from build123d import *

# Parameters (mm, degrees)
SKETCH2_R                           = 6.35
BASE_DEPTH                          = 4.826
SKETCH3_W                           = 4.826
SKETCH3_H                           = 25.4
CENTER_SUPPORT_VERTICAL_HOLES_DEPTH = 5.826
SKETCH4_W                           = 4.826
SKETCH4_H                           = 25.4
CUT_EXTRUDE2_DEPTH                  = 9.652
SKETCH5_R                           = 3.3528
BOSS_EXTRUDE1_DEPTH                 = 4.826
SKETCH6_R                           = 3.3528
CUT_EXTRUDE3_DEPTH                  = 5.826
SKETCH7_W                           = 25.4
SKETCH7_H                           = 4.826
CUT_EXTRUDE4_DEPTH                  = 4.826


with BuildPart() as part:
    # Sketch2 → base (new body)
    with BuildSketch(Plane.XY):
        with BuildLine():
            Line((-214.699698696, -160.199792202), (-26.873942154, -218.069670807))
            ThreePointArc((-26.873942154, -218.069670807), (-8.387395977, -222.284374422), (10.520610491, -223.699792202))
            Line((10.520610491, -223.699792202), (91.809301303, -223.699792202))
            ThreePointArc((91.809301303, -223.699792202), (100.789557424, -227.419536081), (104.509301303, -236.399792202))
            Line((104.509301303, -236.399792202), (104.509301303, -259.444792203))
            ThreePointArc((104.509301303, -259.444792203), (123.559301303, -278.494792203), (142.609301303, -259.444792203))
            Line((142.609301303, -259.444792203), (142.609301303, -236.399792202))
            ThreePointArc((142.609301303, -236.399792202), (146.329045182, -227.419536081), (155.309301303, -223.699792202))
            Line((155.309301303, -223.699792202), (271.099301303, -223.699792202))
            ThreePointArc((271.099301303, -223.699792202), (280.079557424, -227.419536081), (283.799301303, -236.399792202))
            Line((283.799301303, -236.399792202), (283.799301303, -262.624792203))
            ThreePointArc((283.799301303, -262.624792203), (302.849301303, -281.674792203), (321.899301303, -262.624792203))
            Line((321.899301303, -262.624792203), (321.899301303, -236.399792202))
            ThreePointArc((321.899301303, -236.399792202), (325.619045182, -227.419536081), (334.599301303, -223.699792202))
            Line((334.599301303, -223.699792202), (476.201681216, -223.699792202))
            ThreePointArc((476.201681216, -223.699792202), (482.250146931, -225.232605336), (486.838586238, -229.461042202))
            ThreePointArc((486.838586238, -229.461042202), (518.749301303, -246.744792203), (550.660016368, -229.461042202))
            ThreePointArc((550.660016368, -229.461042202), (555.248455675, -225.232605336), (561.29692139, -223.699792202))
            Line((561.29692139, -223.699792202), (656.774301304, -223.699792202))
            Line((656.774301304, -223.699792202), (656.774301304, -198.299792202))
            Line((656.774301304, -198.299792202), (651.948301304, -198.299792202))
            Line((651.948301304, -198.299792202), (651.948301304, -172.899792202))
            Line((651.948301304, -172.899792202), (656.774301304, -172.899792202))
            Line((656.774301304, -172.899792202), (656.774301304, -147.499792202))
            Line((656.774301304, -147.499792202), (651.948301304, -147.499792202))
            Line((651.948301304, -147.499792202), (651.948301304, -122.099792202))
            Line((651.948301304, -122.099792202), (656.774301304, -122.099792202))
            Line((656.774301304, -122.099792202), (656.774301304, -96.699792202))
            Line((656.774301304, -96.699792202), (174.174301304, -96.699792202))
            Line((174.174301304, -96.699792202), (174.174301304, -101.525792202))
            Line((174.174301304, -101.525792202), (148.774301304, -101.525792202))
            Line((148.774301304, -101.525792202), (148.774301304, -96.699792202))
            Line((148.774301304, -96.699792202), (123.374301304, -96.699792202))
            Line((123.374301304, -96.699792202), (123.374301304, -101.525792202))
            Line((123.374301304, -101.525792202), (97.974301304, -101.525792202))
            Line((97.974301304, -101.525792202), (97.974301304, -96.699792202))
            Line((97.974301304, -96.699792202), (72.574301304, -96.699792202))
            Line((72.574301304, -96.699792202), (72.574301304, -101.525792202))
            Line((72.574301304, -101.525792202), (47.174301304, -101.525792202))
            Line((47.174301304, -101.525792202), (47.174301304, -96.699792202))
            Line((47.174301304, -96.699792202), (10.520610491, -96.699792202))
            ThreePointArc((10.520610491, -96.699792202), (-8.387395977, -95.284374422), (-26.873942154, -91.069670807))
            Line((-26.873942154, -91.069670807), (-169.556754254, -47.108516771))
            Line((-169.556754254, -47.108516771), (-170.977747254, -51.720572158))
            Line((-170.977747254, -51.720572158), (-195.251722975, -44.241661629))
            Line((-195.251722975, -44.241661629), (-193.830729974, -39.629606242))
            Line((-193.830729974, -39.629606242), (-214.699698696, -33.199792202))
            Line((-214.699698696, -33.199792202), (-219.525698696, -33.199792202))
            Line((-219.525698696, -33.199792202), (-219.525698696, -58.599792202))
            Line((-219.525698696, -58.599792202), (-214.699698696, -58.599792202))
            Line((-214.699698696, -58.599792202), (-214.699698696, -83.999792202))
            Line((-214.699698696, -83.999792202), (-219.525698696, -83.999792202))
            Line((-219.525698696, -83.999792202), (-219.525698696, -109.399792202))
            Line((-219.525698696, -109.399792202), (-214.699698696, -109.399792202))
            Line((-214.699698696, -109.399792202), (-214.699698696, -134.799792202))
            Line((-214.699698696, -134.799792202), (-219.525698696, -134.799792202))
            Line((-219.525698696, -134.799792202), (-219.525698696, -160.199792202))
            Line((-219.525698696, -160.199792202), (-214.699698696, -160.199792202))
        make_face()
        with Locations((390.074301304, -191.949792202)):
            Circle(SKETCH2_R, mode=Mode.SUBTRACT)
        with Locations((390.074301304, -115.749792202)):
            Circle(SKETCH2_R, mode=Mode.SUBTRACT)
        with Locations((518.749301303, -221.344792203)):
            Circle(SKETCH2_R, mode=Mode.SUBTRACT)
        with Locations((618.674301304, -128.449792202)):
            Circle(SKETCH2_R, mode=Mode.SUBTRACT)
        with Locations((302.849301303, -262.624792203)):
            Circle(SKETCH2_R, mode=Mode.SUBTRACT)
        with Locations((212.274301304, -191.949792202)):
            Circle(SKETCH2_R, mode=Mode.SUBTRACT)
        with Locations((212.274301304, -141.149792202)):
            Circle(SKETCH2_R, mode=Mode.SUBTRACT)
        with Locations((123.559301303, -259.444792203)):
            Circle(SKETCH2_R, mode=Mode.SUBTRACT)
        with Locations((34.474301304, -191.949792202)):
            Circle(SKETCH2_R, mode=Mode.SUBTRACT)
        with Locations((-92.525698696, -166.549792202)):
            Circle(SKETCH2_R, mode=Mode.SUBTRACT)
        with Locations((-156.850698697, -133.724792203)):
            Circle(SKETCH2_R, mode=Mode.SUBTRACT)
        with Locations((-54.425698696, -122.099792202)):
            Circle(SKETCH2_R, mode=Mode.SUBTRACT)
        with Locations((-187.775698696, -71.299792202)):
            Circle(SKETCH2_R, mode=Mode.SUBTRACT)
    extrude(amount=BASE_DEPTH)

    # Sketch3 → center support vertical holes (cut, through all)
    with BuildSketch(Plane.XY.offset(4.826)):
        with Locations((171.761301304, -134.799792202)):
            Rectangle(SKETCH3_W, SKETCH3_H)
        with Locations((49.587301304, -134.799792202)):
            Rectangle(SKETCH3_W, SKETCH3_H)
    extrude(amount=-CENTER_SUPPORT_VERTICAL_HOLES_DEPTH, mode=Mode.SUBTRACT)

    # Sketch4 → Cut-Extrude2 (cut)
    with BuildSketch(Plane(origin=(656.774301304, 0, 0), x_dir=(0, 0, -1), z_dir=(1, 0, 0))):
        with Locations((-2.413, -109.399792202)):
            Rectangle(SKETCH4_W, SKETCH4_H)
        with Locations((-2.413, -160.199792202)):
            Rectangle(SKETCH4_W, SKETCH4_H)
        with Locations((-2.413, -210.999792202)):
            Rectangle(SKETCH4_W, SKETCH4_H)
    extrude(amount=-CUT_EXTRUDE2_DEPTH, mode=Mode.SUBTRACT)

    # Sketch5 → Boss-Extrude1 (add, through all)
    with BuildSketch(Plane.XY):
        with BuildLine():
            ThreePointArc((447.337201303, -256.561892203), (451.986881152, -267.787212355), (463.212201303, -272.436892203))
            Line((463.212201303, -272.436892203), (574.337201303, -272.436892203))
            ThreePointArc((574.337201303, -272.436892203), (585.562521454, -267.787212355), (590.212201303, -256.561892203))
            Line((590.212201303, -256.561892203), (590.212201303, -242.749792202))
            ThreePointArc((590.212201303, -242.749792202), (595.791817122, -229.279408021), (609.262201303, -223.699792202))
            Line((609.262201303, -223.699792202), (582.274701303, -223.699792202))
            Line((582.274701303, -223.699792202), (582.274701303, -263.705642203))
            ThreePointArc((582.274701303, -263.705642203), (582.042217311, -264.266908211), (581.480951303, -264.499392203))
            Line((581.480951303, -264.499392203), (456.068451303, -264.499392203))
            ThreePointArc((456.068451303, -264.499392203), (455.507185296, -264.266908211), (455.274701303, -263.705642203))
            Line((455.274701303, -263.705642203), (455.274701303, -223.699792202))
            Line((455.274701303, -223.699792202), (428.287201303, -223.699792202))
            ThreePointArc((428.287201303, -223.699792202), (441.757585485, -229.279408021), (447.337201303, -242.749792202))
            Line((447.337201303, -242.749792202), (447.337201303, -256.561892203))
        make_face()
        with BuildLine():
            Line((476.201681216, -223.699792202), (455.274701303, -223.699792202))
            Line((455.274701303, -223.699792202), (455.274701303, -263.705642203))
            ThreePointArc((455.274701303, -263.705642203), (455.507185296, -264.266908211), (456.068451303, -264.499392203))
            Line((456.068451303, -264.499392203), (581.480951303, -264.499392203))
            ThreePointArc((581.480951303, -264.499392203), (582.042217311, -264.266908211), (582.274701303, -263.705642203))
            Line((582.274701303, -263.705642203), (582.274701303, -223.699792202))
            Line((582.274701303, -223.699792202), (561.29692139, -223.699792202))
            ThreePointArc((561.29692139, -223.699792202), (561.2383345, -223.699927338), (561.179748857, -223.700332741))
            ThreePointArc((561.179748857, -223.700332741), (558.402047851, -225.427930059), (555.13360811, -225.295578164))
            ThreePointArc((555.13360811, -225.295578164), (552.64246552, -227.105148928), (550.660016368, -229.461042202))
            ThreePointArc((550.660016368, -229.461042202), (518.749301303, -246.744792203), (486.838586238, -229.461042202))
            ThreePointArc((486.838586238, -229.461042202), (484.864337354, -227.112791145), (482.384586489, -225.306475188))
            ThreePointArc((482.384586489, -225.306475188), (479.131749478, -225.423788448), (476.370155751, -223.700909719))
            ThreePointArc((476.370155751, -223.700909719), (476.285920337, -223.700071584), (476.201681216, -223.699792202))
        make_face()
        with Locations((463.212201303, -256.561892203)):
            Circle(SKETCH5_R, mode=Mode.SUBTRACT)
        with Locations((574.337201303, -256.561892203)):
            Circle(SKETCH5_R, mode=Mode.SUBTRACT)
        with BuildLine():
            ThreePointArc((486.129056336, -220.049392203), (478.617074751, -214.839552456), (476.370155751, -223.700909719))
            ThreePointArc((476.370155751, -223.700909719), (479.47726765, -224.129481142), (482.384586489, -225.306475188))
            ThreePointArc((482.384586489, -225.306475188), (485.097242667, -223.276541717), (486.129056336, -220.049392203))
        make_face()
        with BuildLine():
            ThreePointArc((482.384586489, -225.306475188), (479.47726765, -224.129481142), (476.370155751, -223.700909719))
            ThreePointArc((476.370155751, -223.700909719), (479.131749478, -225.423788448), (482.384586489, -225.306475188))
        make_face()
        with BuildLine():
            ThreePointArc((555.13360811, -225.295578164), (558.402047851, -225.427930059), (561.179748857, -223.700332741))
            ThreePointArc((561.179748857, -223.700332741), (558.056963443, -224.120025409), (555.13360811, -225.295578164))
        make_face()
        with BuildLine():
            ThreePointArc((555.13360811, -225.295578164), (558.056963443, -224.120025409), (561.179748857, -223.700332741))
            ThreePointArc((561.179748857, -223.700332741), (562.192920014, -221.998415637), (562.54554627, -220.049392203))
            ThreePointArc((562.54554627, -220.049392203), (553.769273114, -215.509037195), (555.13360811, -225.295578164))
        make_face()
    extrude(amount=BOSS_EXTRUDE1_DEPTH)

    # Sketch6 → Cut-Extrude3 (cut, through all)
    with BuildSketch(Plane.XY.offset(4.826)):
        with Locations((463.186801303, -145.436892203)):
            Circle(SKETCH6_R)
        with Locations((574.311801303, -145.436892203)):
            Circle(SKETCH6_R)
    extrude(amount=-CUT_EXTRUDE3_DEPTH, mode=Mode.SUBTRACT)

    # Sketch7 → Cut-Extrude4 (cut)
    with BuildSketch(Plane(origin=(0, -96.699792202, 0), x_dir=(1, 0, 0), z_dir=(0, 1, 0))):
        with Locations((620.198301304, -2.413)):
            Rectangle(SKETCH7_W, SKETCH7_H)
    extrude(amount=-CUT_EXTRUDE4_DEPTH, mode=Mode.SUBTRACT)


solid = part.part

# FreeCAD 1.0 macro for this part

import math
import FreeCAD as App
import Part
import Sketcher
from FreeCAD import Vector
Q = App.Units.Quantity


def add_polygon(sketch, points):
    """Adds a closed chain of lines whose ends are joined by coincident constraints."""
    first, n = sketch.GeometryCount, len(points)
    for a, b in zip(points, points[1:] + points[:1]):
        sketch.addGeometry(Part.LineSegment(App.Vector(*a, 0), App.Vector(*b, 0)), False)
    for i in range(n):
        sketch.addConstraint(Sketcher.Constraint("Coincident", first + i, 2, first + (i + 1) % n, 1))

doc = App.newDocument("Part")
body = doc.addObject("PartDesign::Body", "Body")

# Sketch on XY plane
sketch1 = body.newObject("Sketcher::SketchObject", "Sketch")
sketch1.AttachmentSupport = (doc.getObject("XY_Plane"), [""])
sketch1.MapMode = "FlatFace"
sketch1.addGeometry(Part.LineSegment(Vector(-214.7, -160.2, 0), Vector(-26.9, -218.1, 0)), False)
sketch1.addGeometry(Part.ArcOfCircle(Part.Circle(Vector(10.5, -96.7, 0), Vector(0, 0, 1), 127), math.radians(-107.12), math.radians(-90)), False)
sketch1.addGeometry(Part.LineSegment(Vector(10.5, -223.7, 0), Vector(91.8, -223.7, 0)), False)
sketch1.addGeometry(Part.ArcOfCircle(Part.Circle(Vector(91.8, -236.4, 0), Vector(0, 0, 1), 12.7), math.radians(0), math.radians(90)), False)
sketch1.addGeometry(Part.LineSegment(Vector(104.5, -236.4, 0), Vector(104.5, -259.4, 0)), False)
sketch1.addGeometry(Part.ArcOfCircle(Part.Circle(Vector(123.6, -259.4, 0), Vector(0, 0, 1), 19.1), math.radians(180), math.radians(360)), False)
sketch1.addGeometry(Part.LineSegment(Vector(142.6, -259.4, 0), Vector(142.6, -236.4, 0)), False)
sketch1.addGeometry(Part.ArcOfCircle(Part.Circle(Vector(155.3, -236.4, 0), Vector(0, 0, 1), 12.7), math.radians(90), math.radians(180)), False)
sketch1.addGeometry(Part.LineSegment(Vector(155.3, -223.7, 0), Vector(271.1, -223.7, 0)), False)
sketch1.addGeometry(Part.ArcOfCircle(Part.Circle(Vector(271.1, -236.4, 0), Vector(0, 0, 1), 12.7), math.radians(0), math.radians(90)), False)
sketch1.addGeometry(Part.LineSegment(Vector(283.8, -236.4, 0), Vector(283.8, -262.6, 0)), False)
sketch1.addGeometry(Part.ArcOfCircle(Part.Circle(Vector(302.8, -262.6, 0), Vector(0, 0, 1), 19.1), math.radians(180), math.radians(360)), False)
sketch1.addGeometry(Part.LineSegment(Vector(321.9, -262.6, 0), Vector(321.9, -236.4, 0)), False)
sketch1.addGeometry(Part.ArcOfCircle(Part.Circle(Vector(334.6, -236.4, 0), Vector(0, 0, 1), 12.7), math.radians(90), math.radians(180)), False)
sketch1.addGeometry(Part.LineSegment(Vector(334.6, -223.7, 0), Vector(476.2, -223.7, 0)), False)
sketch1.addGeometry(Part.ArcOfCircle(Part.Circle(Vector(476.2, -236.4, 0), Vector(0, 0, 1), 12.7), math.radians(33), math.radians(90)), False)
sketch1.addGeometry(Part.ArcOfCircle(Part.Circle(Vector(518.7, -208.6, 0), Vector(0, 0, 1), 38.1), math.radians(-147), math.radians(-33)), False)
sketch1.addGeometry(Part.ArcOfCircle(Part.Circle(Vector(561.3, -236.4, 0), Vector(0, 0, 1), 12.7), math.radians(90), math.radians(147)), False)
sketch1.addGeometry(Part.LineSegment(Vector(561.3, -223.7, 0), Vector(656.8, -223.7, 0)), False)
sketch1.addGeometry(Part.LineSegment(Vector(656.8, -223.7, 0), Vector(656.8, -198.3, 0)), False)
sketch1.addGeometry(Part.LineSegment(Vector(656.8, -198.3, 0), Vector(651.9, -198.3, 0)), False)
sketch1.addGeometry(Part.LineSegment(Vector(651.9, -198.3, 0), Vector(651.9, -172.9, 0)), False)
sketch1.addGeometry(Part.LineSegment(Vector(651.9, -172.9, 0), Vector(656.8, -172.9, 0)), False)
sketch1.addGeometry(Part.LineSegment(Vector(656.8, -172.9, 0), Vector(656.8, -147.5, 0)), False)
sketch1.addGeometry(Part.LineSegment(Vector(656.8, -147.5, 0), Vector(651.9, -147.5, 0)), False)
sketch1.addGeometry(Part.LineSegment(Vector(651.9, -147.5, 0), Vector(651.9, -122.1, 0)), False)
sketch1.addGeometry(Part.LineSegment(Vector(651.9, -122.1, 0), Vector(656.8, -122.1, 0)), False)
sketch1.addGeometry(Part.LineSegment(Vector(656.8, -122.1, 0), Vector(656.8, -96.7, 0)), False)
sketch1.addGeometry(Part.LineSegment(Vector(656.8, -96.7, 0), Vector(174.2, -96.7, 0)), False)
sketch1.addGeometry(Part.LineSegment(Vector(174.2, -96.7, 0), Vector(174.2, -101.5, 0)), False)
sketch1.addGeometry(Part.LineSegment(Vector(174.2, -101.5, 0), Vector(148.8, -101.5, 0)), False)
sketch1.addGeometry(Part.LineSegment(Vector(148.8, -101.5, 0), Vector(148.8, -96.7, 0)), False)
sketch1.addGeometry(Part.LineSegment(Vector(148.8, -96.7, 0), Vector(123.4, -96.7, 0)), False)
sketch1.addGeometry(Part.LineSegment(Vector(123.4, -96.7, 0), Vector(123.4, -101.5, 0)), False)
sketch1.addGeometry(Part.LineSegment(Vector(123.4, -101.5, 0), Vector(98, -101.5, 0)), False)
sketch1.addGeometry(Part.LineSegment(Vector(98, -101.5, 0), Vector(98, -96.7, 0)), False)
sketch1.addGeometry(Part.LineSegment(Vector(98, -96.7, 0), Vector(72.6, -96.7, 0)), False)
sketch1.addGeometry(Part.LineSegment(Vector(72.6, -96.7, 0), Vector(72.6, -101.5, 0)), False)
sketch1.addGeometry(Part.LineSegment(Vector(72.6, -101.5, 0), Vector(47.2, -101.5, 0)), False)
sketch1.addGeometry(Part.LineSegment(Vector(47.2, -101.5, 0), Vector(47.2, -96.7, 0)), False)
sketch1.addGeometry(Part.LineSegment(Vector(47.2, -96.7, 0), Vector(10.5, -96.7, 0)), False)
sketch1.addGeometry(Part.ArcOfCircle(Part.Circle(Vector(10.5, 30.3, 0), Vector(0, 0, 1), 127), math.radians(-107.12), math.radians(-90)), False)
sketch1.addGeometry(Part.LineSegment(Vector(-26.9, -91.1, 0), Vector(-169.6, -47.1, 0)), False)
sketch1.addGeometry(Part.LineSegment(Vector(-169.6, -47.1, 0), Vector(-171, -51.7, 0)), False)
sketch1.addGeometry(Part.LineSegment(Vector(-171, -51.7, 0), Vector(-195.3, -44.2, 0)), False)
sketch1.addGeometry(Part.LineSegment(Vector(-195.3, -44.2, 0), Vector(-193.8, -39.6, 0)), False)
sketch1.addGeometry(Part.LineSegment(Vector(-193.8, -39.6, 0), Vector(-214.7, -33.2, 0)), False)
sketch1.addGeometry(Part.LineSegment(Vector(-214.7, -33.2, 0), Vector(-219.5, -33.2, 0)), False)
sketch1.addGeometry(Part.LineSegment(Vector(-219.5, -33.2, 0), Vector(-219.5, -58.6, 0)), False)
sketch1.addGeometry(Part.LineSegment(Vector(-219.5, -58.6, 0), Vector(-214.7, -58.6, 0)), False)
sketch1.addGeometry(Part.LineSegment(Vector(-214.7, -58.6, 0), Vector(-214.7, -84, 0)), False)
sketch1.addGeometry(Part.LineSegment(Vector(-214.7, -84, 0), Vector(-219.5, -84, 0)), False)
sketch1.addGeometry(Part.LineSegment(Vector(-219.5, -84, 0), Vector(-219.5, -109.4, 0)), False)
sketch1.addGeometry(Part.LineSegment(Vector(-219.5, -109.4, 0), Vector(-214.7, -109.4, 0)), False)
sketch1.addGeometry(Part.LineSegment(Vector(-214.7, -109.4, 0), Vector(-214.7, -134.8, 0)), False)
sketch1.addGeometry(Part.LineSegment(Vector(-214.7, -134.8, 0), Vector(-219.5, -134.8, 0)), False)
sketch1.addGeometry(Part.LineSegment(Vector(-219.5, -134.8, 0), Vector(-219.5, -160.2, 0)), False)
sketch1.addGeometry(Part.LineSegment(Vector(-219.5, -160.2, 0), Vector(-214.7, -160.2, 0)), False)
sketch1.addGeometry(Part.Circle(Vector(123.6, -259.4, 0), Vector(0, 0, 1), 6.3), False)
sketch1.addGeometry(Part.Circle(Vector(34.5, -191.9, 0), Vector(0, 0, 1), 6.3), False)
sketch1.addGeometry(Part.Circle(Vector(212.3, -191.9, 0), Vector(0, 0, 1), 6.3), False)
sketch1.addGeometry(Part.Circle(Vector(302.8, -262.6, 0), Vector(0, 0, 1), 6.3), False)
sketch1.addGeometry(Part.Circle(Vector(518.7, -221.3, 0), Vector(0, 0, 1), 6.3), False)
sketch1.addGeometry(Part.Circle(Vector(390.1, -191.9, 0), Vector(0, 0, 1), 6.3), False)
sketch1.addGeometry(Part.Circle(Vector(-92.5, -166.5, 0), Vector(0, 0, 1), 6.3), False)
sketch1.addGeometry(Part.Circle(Vector(-156.9, -133.7, 0), Vector(0, 0, 1), 6.3), False)
sketch1.addGeometry(Part.Circle(Vector(-54.4, -122.1, 0), Vector(0, 0, 1), 6.3), False)
sketch1.addGeometry(Part.Circle(Vector(212.3, -141.1, 0), Vector(0, 0, 1), 6.3), False)
sketch1.addGeometry(Part.Circle(Vector(-187.8, -71.3, 0), Vector(0, 0, 1), 6.3), False)
sketch1.addGeometry(Part.Circle(Vector(618.7, -128.4, 0), Vector(0, 0, 1), 6.3), False)
sketch1.addGeometry(Part.Circle(Vector(390.1, -115.7, 0), Vector(0, 0, 1), 6.3), False)
sketch1.addConstraint(Sketcher.Constraint("Tangent", 0, 2, 1, 1))
sketch1.addConstraint(Sketcher.Constraint("Tangent", 1, 2, 2, 1))
sketch1.addConstraint(Sketcher.Constraint("Tangent", 2, 2, 3, 2))
sketch1.addConstraint(Sketcher.Constraint("Tangent", 3, 1, 4, 1))
sketch1.addConstraint(Sketcher.Constraint("Tangent", 4, 2, 5, 1))
sketch1.addConstraint(Sketcher.Constraint("Tangent", 5, 2, 6, 1))
sketch1.addConstraint(Sketcher.Constraint("Tangent", 6, 2, 7, 2))
sketch1.addConstraint(Sketcher.Constraint("Tangent", 7, 1, 8, 1))
sketch1.addConstraint(Sketcher.Constraint("Tangent", 8, 2, 9, 2))
sketch1.addConstraint(Sketcher.Constraint("Tangent", 9, 1, 10, 1))
sketch1.addConstraint(Sketcher.Constraint("Tangent", 10, 2, 11, 1))
sketch1.addConstraint(Sketcher.Constraint("Tangent", 11, 2, 12, 1))
sketch1.addConstraint(Sketcher.Constraint("Tangent", 12, 2, 13, 2))
sketch1.addConstraint(Sketcher.Constraint("Tangent", 13, 1, 14, 1))
sketch1.addConstraint(Sketcher.Constraint("Tangent", 14, 2, 15, 2))
sketch1.addConstraint(Sketcher.Constraint("Tangent", 15, 1, 16, 1))
sketch1.addConstraint(Sketcher.Constraint("Tangent", 16, 2, 17, 2))
sketch1.addConstraint(Sketcher.Constraint("Tangent", 17, 1, 18, 1))
sketch1.addConstraint(Sketcher.Constraint("Coincident", 18, 2, 19, 1))
sketch1.addConstraint(Sketcher.Constraint("Coincident", 19, 2, 20, 1))
sketch1.addConstraint(Sketcher.Constraint("Coincident", 20, 2, 21, 1))
sketch1.addConstraint(Sketcher.Constraint("Coincident", 21, 2, 22, 1))
sketch1.addConstraint(Sketcher.Constraint("Coincident", 22, 2, 23, 1))
sketch1.addConstraint(Sketcher.Constraint("Coincident", 23, 2, 24, 1))
sketch1.addConstraint(Sketcher.Constraint("Coincident", 24, 2, 25, 1))
sketch1.addConstraint(Sketcher.Constraint("Coincident", 25, 2, 26, 1))
sketch1.addConstraint(Sketcher.Constraint("Coincident", 26, 2, 27, 1))
sketch1.addConstraint(Sketcher.Constraint("Coincident", 27, 2, 28, 1))
sketch1.addConstraint(Sketcher.Constraint("Coincident", 28, 2, 29, 1))
sketch1.addConstraint(Sketcher.Constraint("Coincident", 29, 2, 30, 1))
sketch1.addConstraint(Sketcher.Constraint("Coincident", 30, 2, 31, 1))
sketch1.addConstraint(Sketcher.Constraint("Coincident", 31, 2, 32, 1))
sketch1.addConstraint(Sketcher.Constraint("Coincident", 32, 2, 33, 1))
sketch1.addConstraint(Sketcher.Constraint("Coincident", 33, 2, 34, 1))
sketch1.addConstraint(Sketcher.Constraint("Coincident", 34, 2, 35, 1))
sketch1.addConstraint(Sketcher.Constraint("Coincident", 35, 2, 36, 1))
sketch1.addConstraint(Sketcher.Constraint("Coincident", 36, 2, 37, 1))
sketch1.addConstraint(Sketcher.Constraint("Coincident", 37, 2, 38, 1))
sketch1.addConstraint(Sketcher.Constraint("Coincident", 38, 2, 39, 1))
sketch1.addConstraint(Sketcher.Constraint("Coincident", 39, 2, 40, 1))
sketch1.addConstraint(Sketcher.Constraint("Tangent", 40, 2, 41, 2))
sketch1.addConstraint(Sketcher.Constraint("Tangent", 41, 1, 42, 1))
sketch1.addConstraint(Sketcher.Constraint("Coincident", 42, 2, 43, 1))
sketch1.addConstraint(Sketcher.Constraint("Coincident", 43, 2, 44, 1))
sketch1.addConstraint(Sketcher.Constraint("Coincident", 44, 2, 45, 1))
sketch1.addConstraint(Sketcher.Constraint("Coincident", 45, 2, 46, 1))
sketch1.addConstraint(Sketcher.Constraint("Coincident", 46, 2, 47, 1))
sketch1.addConstraint(Sketcher.Constraint("Coincident", 47, 2, 48, 1))
sketch1.addConstraint(Sketcher.Constraint("Coincident", 48, 2, 49, 1))
sketch1.addConstraint(Sketcher.Constraint("Coincident", 49, 2, 50, 1))
sketch1.addConstraint(Sketcher.Constraint("Coincident", 50, 2, 51, 1))
sketch1.addConstraint(Sketcher.Constraint("Coincident", 51, 2, 52, 1))
sketch1.addConstraint(Sketcher.Constraint("Coincident", 52, 2, 53, 1))
sketch1.addConstraint(Sketcher.Constraint("Coincident", 53, 2, 54, 1))
sketch1.addConstraint(Sketcher.Constraint("Coincident", 54, 2, 55, 1))
sketch1.addConstraint(Sketcher.Constraint("Coincident", 55, 2, 56, 1))
sketch1.addConstraint(Sketcher.Constraint("Coincident", 56, 2, 57, 1))
sketch1.addConstraint(Sketcher.Constraint("Coincident", 57, 2, 0, 1))
sketch1.addConstraint(Sketcher.Constraint("Horizontal", 2))
sketch1.addConstraint(Sketcher.Constraint("Vertical", 4))
sketch1.addConstraint(Sketcher.Constraint("Vertical", 6))
sketch1.addConstraint(Sketcher.Constraint("Horizontal", 8))
sketch1.addConstraint(Sketcher.Constraint("Vertical", 10))
sketch1.addConstraint(Sketcher.Constraint("Vertical", 12))
sketch1.addConstraint(Sketcher.Constraint("Horizontal", 14))
sketch1.addConstraint(Sketcher.Constraint("Horizontal", 18))
sketch1.addConstraint(Sketcher.Constraint("Vertical", 19))
sketch1.addConstraint(Sketcher.Constraint("Horizontal", 20))
sketch1.addConstraint(Sketcher.Constraint("Vertical", 21))
sketch1.addConstraint(Sketcher.Constraint("Horizontal", 22))
sketch1.addConstraint(Sketcher.Constraint("Vertical", 23))
sketch1.addConstraint(Sketcher.Constraint("Horizontal", 24))
sketch1.addConstraint(Sketcher.Constraint("Vertical", 25))
sketch1.addConstraint(Sketcher.Constraint("Horizontal", 26))
sketch1.addConstraint(Sketcher.Constraint("Vertical", 27))
sketch1.addConstraint(Sketcher.Constraint("Horizontal", 28))
sketch1.addConstraint(Sketcher.Constraint("Vertical", 29))
sketch1.addConstraint(Sketcher.Constraint("Horizontal", 30))
sketch1.addConstraint(Sketcher.Constraint("Vertical", 31))
sketch1.addConstraint(Sketcher.Constraint("Horizontal", 32))
sketch1.addConstraint(Sketcher.Constraint("Vertical", 33))
sketch1.addConstraint(Sketcher.Constraint("Horizontal", 34))
sketch1.addConstraint(Sketcher.Constraint("Vertical", 35))
sketch1.addConstraint(Sketcher.Constraint("Horizontal", 36))
sketch1.addConstraint(Sketcher.Constraint("Vertical", 37))
sketch1.addConstraint(Sketcher.Constraint("Horizontal", 38))
sketch1.addConstraint(Sketcher.Constraint("Vertical", 39))
sketch1.addConstraint(Sketcher.Constraint("Horizontal", 40))
sketch1.addConstraint(Sketcher.Constraint("Horizontal", 47))
sketch1.addConstraint(Sketcher.Constraint("Vertical", 48))
sketch1.addConstraint(Sketcher.Constraint("Horizontal", 49))
sketch1.addConstraint(Sketcher.Constraint("Vertical", 50))
sketch1.addConstraint(Sketcher.Constraint("Horizontal", 51))
sketch1.addConstraint(Sketcher.Constraint("Vertical", 52))
sketch1.addConstraint(Sketcher.Constraint("Horizontal", 53))
sketch1.addConstraint(Sketcher.Constraint("Vertical", 54))
sketch1.addConstraint(Sketcher.Constraint("Horizontal", 55))
sketch1.addConstraint(Sketcher.Constraint("Vertical", 56))
sketch1.addConstraint(Sketcher.Constraint("Horizontal", 57))
sketch1.addConstraint(Sketcher.Constraint("Coincident", 58, 3, 5, 3))
sketch1.addConstraint(Sketcher.Constraint("Coincident", 61, 3, 11, 3))
sketch1.addConstraint(Sketcher.Constraint("Coincident", 40, 2, 1, 3))
sketch1.addConstraint(Sketcher.Constraint("Equal", 3, 7))
sketch1.addConstraint(Sketcher.Constraint("Equal", 7, 9))
sketch1.addConstraint(Sketcher.Constraint("Equal", 5, 11))
sketch1.addConstraint(Sketcher.Constraint("Equal", 9, 13))
sketch1.addConstraint(Sketcher.Constraint("Equal", 13, 15))
sketch1.addConstraint(Sketcher.Constraint("Equal", 15, 17))
sketch1.addConstraint(Sketcher.Constraint("Equal", 1, 41))
sketch1.addConstraint(Sketcher.Constraint("Equal", 58, 59))
sketch1.addConstraint(Sketcher.Constraint("Equal", 59, 60))
sketch1.addConstraint(Sketcher.Constraint("Equal", 60, 61))
sketch1.addConstraint(Sketcher.Constraint("Equal", 61, 62))
sketch1.addConstraint(Sketcher.Constraint("Equal", 62, 63))
sketch1.addConstraint(Sketcher.Constraint("Equal", 63, 64))
sketch1.addConstraint(Sketcher.Constraint("Equal", 64, 65))
sketch1.addConstraint(Sketcher.Constraint("Equal", 65, 66))
sketch1.addConstraint(Sketcher.Constraint("Equal", 66, 67))
sketch1.addConstraint(Sketcher.Constraint("Equal", 67, 68))
sketch1.addConstraint(Sketcher.Constraint("Equal", 68, 69))
sketch1.addConstraint(Sketcher.Constraint("Equal", 69, 70))
sketch1.addConstraint(Sketcher.Constraint("Parallel", 0, 42))
sketch1.addConstraint(Sketcher.Constraint("Perpendicular", 42, 43))
sketch1.addConstraint(Sketcher.Constraint("Perpendicular", 43, 44))
sketch1.addConstraint(Sketcher.Constraint("Perpendicular", 44, 45))
sketch1.addConstraint(Sketcher.Constraint("Perpendicular", 45, 46))
sketch1.addConstraint(Sketcher.Constraint("Horizontal", 3, 3, 7, 3))
sketch1.addConstraint(Sketcher.Constraint("Horizontal", 9, 3, 13, 3))
sketch1.addConstraint(Sketcher.Constraint("Horizontal", 15, 3, 17, 3))
sketch1.addConstraint(Sketcher.Constraint("Horizontal", 59, 3, 60, 3))
sketch1.addConstraint(Sketcher.Constraint("Horizontal", 60, 3, 63, 3))
sketch1.addConstraint(Sketcher.Constraint("Horizontal", 66, 3, 25, 2))
sketch1.addConstraint(Sketcher.Constraint("Horizontal", 1, 3, 27, 2))
sketch1.addConstraint(Sketcher.Constraint("Horizontal", 28, 2, 31, 2))
sketch1.addConstraint(Sketcher.Constraint("Horizontal", 30, 2, 33, 2))
sketch1.addConstraint(Sketcher.Constraint("Horizontal", 32, 2, 35, 2))
sketch1.addConstraint(Sketcher.Constraint("Horizontal", 34, 2, 37, 2))
sketch1.addConstraint(Sketcher.Constraint("Vertical", 16, 3, 62, 3))
sketch1.addConstraint(Sketcher.Constraint("Vertical", 60, 3, 67, 3))
sketch1.addConstraint(Sketcher.Constraint("Vertical", 63, 3, 70, 3))
sketch1.addConstraint(Sketcher.Constraint("Vertical", 19, 2, 22, 2))
sketch1.addConstraint(Sketcher.Constraint("Vertical", 21, 2, 24, 2))
sketch1.addConstraint(Sketcher.Constraint("Vertical", 23, 2, 26, 2))
sketch1.addConstraint(Sketcher.Constraint("Vertical", 46, 2, 49, 2))
sketch1.addConstraint(Sketcher.Constraint("Vertical", 48, 2, 51, 2))
sketch1.addConstraint(Sketcher.Constraint("Vertical", 50, 2, 53, 2))
sketch1.addConstraint(Sketcher.Constraint("Vertical", 52, 2, 55, 2))
sketch1.addConstraint(Sketcher.Constraint("Vertical", 54, 2, 57, 2))
sketch1.addConstraint(Sketcher.Constraint("Equal", 30, 32))
sketch1.addConstraint(Sketcher.Constraint("Equal", 32, 34))
sketch1.addConstraint(Sketcher.Constraint("Equal", 34, 36))
sketch1.addConstraint(Sketcher.Constraint("Equal", 36, 38))
sketch1.addConstraint(Sketcher.Constraint("Equal", 26, 47))
sketch1.addConstraint(Sketcher.Constraint("Equal", 38, 19))
sketch1.addConstraint(Sketcher.Constraint("Equal", 19, 21))
sketch1.addConstraint(Sketcher.Constraint("Equal", 21, 23))
sketch1.addConstraint(Sketcher.Constraint("Equal", 23, 25))
sketch1.addConstraint(Sketcher.Constraint("Equal", 25, 27))
sketch1.addConstraint(Sketcher.Constraint("Equal", 57, 29))
sketch1.addConstraint(Sketcher.Constraint("Equal", 27, 48))
sketch1.addConstraint(Sketcher.Constraint("Equal", 48, 50))
sketch1.addConstraint(Sketcher.Constraint("Equal", 50, 52))
sketch1.addConstraint(Sketcher.Constraint("Equal", 52, 54))
sketch1.addConstraint(Sketcher.Constraint("Equal", 54, 56))
sketch1.addConstraint(Sketcher.Constraint("Radius", 1, Q("5 in")))
sketch1.addConstraint(Sketcher.Constraint("Diameter", 58, Q("0.5 in")))
sketch1.addConstraint(Sketcher.Constraint("Radius", 3, Q("0.5 in")))
sketch1.addConstraint(Sketcher.Constraint("Radius", 16, Q("1.5 in")))
sketch1.addConstraint(Sketcher.Constraint("DistanceX", 28, 2, 28, 1, Q("19 in")))
sketch1.addConstraint(Sketcher.Constraint("Radius", 5, Q("0.75 in")))
sketch1.addConstraint(Sketcher.Constraint("Distance", 44, Q("1 in")))
sketch1.addConstraint(Sketcher.Constraint("DistanceX", 20, 2, 20, 1, Q("0.19 in")))
sketch1.addConstraint(Sketcher.Constraint("Distance", 43, Q("0.19 in")))
sketch1.addConstraint(Sketcher.Constraint("DistanceX", 8, 1, 8, 2, 115.79))
sketch1.addConstraint(Sketcher.Constraint("DistanceY", 4, 2, 4, 1, 23.045))
sketch1.addConstraint(Sketcher.Constraint("DistanceY", 10, 2, 10, 1, 26.225))
sketch1.addConstraint(Sketcher.Constraint("Distance", 42, 149.301601))
sketch1.addConstraint(Sketcher.Constraint("DistanceX", 2, 1, 2, 2, 81.288691))
sketch1.addConstraint(Sketcher.Constraint("DistanceX", 14, 1, 14, 2, 141.60238))
sketch1.addConstraint(Sketcher.Constraint("DistanceX", 18, 1, 18, 2, 95.47738))
sketch1.addConstraint(Sketcher.Constraint("DistanceX", 40, 2, 40, 1, 36.653691))
sketch1.addConstraint(Sketcher.Constraint("DistanceX", -1, 1, 3, 3, 91.809301))
sketch1.addConstraint(Sketcher.Constraint("DistanceX", -1, 1, 59, 3, 34.474301))
sketch1.addConstraint(Sketcher.Constraint("DistanceX", -1, 1, 60, 3, 212.274301))
sketch1.addConstraint(Sketcher.Constraint("DistanceX", -1, 1, 63, 3, 390.074301))
sketch1.addConstraint(Sketcher.Constraint("DistanceX", 64, 3, -1, 1, 92.525699))
sketch1.addConstraint(Sketcher.Constraint("DistanceX", 65, 3, -1, 1, 156.850699))
sketch1.addConstraint(Sketcher.Constraint("DistanceX", 66, 3, -1, 1, 54.425699))
sketch1.addConstraint(Sketcher.Constraint("DistanceX", 68, 3, -1, 1, 187.775699))
sketch1.addConstraint(Sketcher.Constraint("DistanceX", -1, 1, 69, 3, 618.674301))
sketch1.addConstraint(Sketcher.Constraint("DistanceX", 46, 2, -1, 1, 214.699699))
sketch1.addConstraint(Sketcher.Constraint("Distance", 0, 196.538642))
sketch1.addConstraint(Sketcher.Constraint("DistanceY", 0, 2, -1, 1, 218.069671))
sketch1.addConstraint(Sketcher.Constraint("DistanceY", 59, 3, -1, 1, 191.949792))
sketch1.addConstraint(Sketcher.Constraint("DistanceY", 62, 3, -1, 1, 221.344792))
sketch1.addConstraint(Sketcher.Constraint("DistanceY", 64, 3, -1, 1, 166.549792))
sketch1.addConstraint(Sketcher.Constraint("DistanceY", 65, 3, -1, 1, 133.724792))
sketch1.addConstraint(Sketcher.Constraint("DistanceY", 67, 3, -1, 1, 141.149792))
sketch1.addConstraint(Sketcher.Constraint("DistanceY", 68, 3, -1, 1, 71.299792))
sketch1.addConstraint(Sketcher.Constraint("DistanceY", 69, 3, -1, 1, 128.449792))
sketch1.addConstraint(Sketcher.Constraint("DistanceY", 70, 3, -1, 1, 115.749792))
pad1 = body.newObject("PartDesign::Pad", "Pad")
pad1.Profile = sketch1
pad1.Length = Q("0.19 in")

# Sketch on XY plane
sketch2 = body.newObject("Sketcher::SketchObject", "Sketch001")
sketch2.AttachmentSupport = (doc.getObject("XY_Plane"), [""])
sketch2.MapMode = "FlatFace"
sketch2.AttachmentOffset = App.Placement(Vector(0, 0, 0.19 * 25.4), App.Rotation())
add_polygon(sketch2, [(169.348301, -122.099792), (169.348301, -147.499792), (174.174301, -147.499792), (174.174301, -122.099792)])  # lines 0-3
add_polygon(sketch2, [(47.174301, -122.099792), (47.174301, -147.499792), (52.000301, -147.499792), (52.000301, -122.099792)])  # lines 4-7
sketch2.addConstraint(Sketcher.Constraint("Vertical", 0))
sketch2.addConstraint(Sketcher.Constraint("Horizontal", 1))
sketch2.addConstraint(Sketcher.Constraint("Vertical", 2))
sketch2.addConstraint(Sketcher.Constraint("Horizontal", 3))
sketch2.addConstraint(Sketcher.Constraint("Vertical", 4))
sketch2.addConstraint(Sketcher.Constraint("Horizontal", 5))
sketch2.addConstraint(Sketcher.Constraint("Vertical", 6))
sketch2.addConstraint(Sketcher.Constraint("Horizontal", 7))
sketch2.addConstraint(Sketcher.Constraint("Horizontal", 1, 2, 4, 2))
sketch2.addConstraint(Sketcher.Constraint("Horizontal", 3, 2, 6, 2))
sketch2.addConstraint(Sketcher.Constraint("Equal", 3, 5))
sketch2.addConstraint(Sketcher.Constraint("DistanceY", 0, 2, 0, 1, Q("1 in")))
sketch2.addConstraint(Sketcher.Constraint("DistanceX", 4, 2, 1, 2, Q("5 in")))
sketch2.addConstraint(Sketcher.Constraint("DistanceX", 1, 1, 1, 2, Q("0.19 in")))
sketch2.addConstraint(Sketcher.Constraint("DistanceX", -1, 1, 0, 2, 169.348301))
sketch2.addConstraint(Sketcher.Constraint("DistanceY", 0, 2, -1, 1, 147.499792))
pocket1 = body.newObject("PartDesign::Pocket", "Pocket")
pocket1.Profile = sketch2
pocket1.Type = "ThroughAll"

# Sketch on YZ plane
sketch3 = body.newObject("Sketcher::SketchObject", "Sketch002")
sketch3.AttachmentSupport = (doc.getObject("YZ_Plane"), [""])
sketch3.MapMode = "FlatFace"
sketch3.AttachmentOffset = App.Placement(Vector(0, 0, 656.774301), App.Rotation())
add_polygon(sketch3, [(-96.7, 4.8), (-122.1, 4.8), (-122.1, 0), (-96.7, 0)])  # lines 0-3
add_polygon(sketch3, [(-147.5, 4.8), (-172.9, 4.8), (-172.9, 0), (-147.5, 0)])  # lines 4-7
add_polygon(sketch3, [(-198.3, 4.8), (-223.7, 4.8), (-223.7, 0), (-198.3, 0)])  # lines 8-11
sketch3.addConstraint(Sketcher.Constraint("Horizontal", 0))
sketch3.addConstraint(Sketcher.Constraint("Vertical", 1))
sketch3.addConstraint(Sketcher.Constraint("Horizontal", 2))
sketch3.addConstraint(Sketcher.Constraint("Vertical", 3))
sketch3.addConstraint(Sketcher.Constraint("Horizontal", 4))
sketch3.addConstraint(Sketcher.Constraint("Vertical", 5))
sketch3.addConstraint(Sketcher.Constraint("Horizontal", 6))
sketch3.addConstraint(Sketcher.Constraint("Vertical", 7))
sketch3.addConstraint(Sketcher.Constraint("Horizontal", 8))
sketch3.addConstraint(Sketcher.Constraint("Vertical", 9))
sketch3.addConstraint(Sketcher.Constraint("Horizontal", 10))
sketch3.addConstraint(Sketcher.Constraint("Vertical", 11))
sketch3.addConstraint(Sketcher.Constraint("PointOnObject", 1, 2, -1))
sketch3.addConstraint(Sketcher.Constraint("PointOnObject", 5, 2, -1))
sketch3.addConstraint(Sketcher.Constraint("PointOnObject", 9, 2, -1))
sketch3.addConstraint(Sketcher.Constraint("Horizontal", 3, 2, 4, 2))
sketch3.addConstraint(Sketcher.Constraint("Horizontal", 7, 2, 8, 2))
sketch3.addConstraint(Sketcher.Constraint("Equal", 2, 4))
sketch3.addConstraint(Sketcher.Constraint("Equal", 6, 8))
sketch3.addConstraint(Sketcher.Constraint("DistanceX", 0, 2, 0, 1, Q("1 in")))
sketch3.addConstraint(Sketcher.Constraint("DistanceX", 4, 2, 0, 2, Q("2 in")))
sketch3.addConstraint(Sketcher.Constraint("DistanceX", 8, 2, 4, 2, Q("2 in")))
sketch3.addConstraint(Sketcher.Constraint("DistanceY", 1, 2, 1, 1, Q("0.19 in")))
sketch3.addConstraint(Sketcher.Constraint("DistanceX", 0, 2, -1, 1, 122.099792))
pocket2 = body.newObject("PartDesign::Pocket", "Pocket001")
pocket2.Profile = sketch3
pocket2.Length = Q("0.38 in")

# Sketch on XY plane
sketch4 = body.newObject("Sketcher::SketchObject", "Sketch003")
sketch4.AttachmentSupport = (doc.getObject("XY_Plane"), [""])
sketch4.MapMode = "FlatFace"
sketch4.addGeometry(Part.ArcOfCircle(Part.Circle(Vector(463.21, -256.56, 0), Vector(0, 0, 1), 15.87), math.radians(180), math.radians(270)), False)
sketch4.addGeometry(Part.LineSegment(Vector(463.21, -272.44, 0), Vector(574.34, -272.44, 0)), False)
sketch4.addGeometry(Part.ArcOfCircle(Part.Circle(Vector(574.34, -256.56, 0), Vector(0, 0, 1), 15.87), math.radians(-90), math.radians(0)), False)
sketch4.addGeometry(Part.LineSegment(Vector(590.21, -256.56, 0), Vector(590.21, -242.75, 0)), False)
sketch4.addGeometry(Part.ArcOfCircle(Part.Circle(Vector(609.26, -242.75, 0), Vector(0, 0, 1), 19.05), math.radians(90), math.radians(180)), False)
sketch4.addGeometry(Part.LineSegment(Vector(609.26, -223.7, 0), Vector(561.3, -223.7, 0)), False)
sketch4.addGeometry(Part.ArcOfCircle(Part.Circle(Vector(561.3, -236.4, 0), Vector(0, 0, 1), 12.7), math.radians(90), math.radians(90.53)), False)
sketch4.addGeometry(Part.ArcOfCircle(Part.Circle(Vector(556.98, -220.05, 0), Vector(0, 0, 1), 5.56), math.radians(-41), math.radians(0)), False)
sketch4.addGeometry(Part.ArcOfCircle(Part.Circle(Vector(556.98, -220.05, 0), Vector(0, 0, 1), 5.56), math.radians(0), math.radians(251)), False)
sketch4.addGeometry(Part.ArcOfCircle(Part.Circle(Vector(561.3, -236.4, 0), Vector(0, 0, 1), 12.7), math.radians(119), math.radians(147)), False)
sketch4.addGeometry(Part.ArcOfCircle(Part.Circle(Vector(518.75, -208.64, 0), Vector(0, 0, 1), 38.1), math.radians(-147), math.radians(-33)), False)
sketch4.addGeometry(Part.ArcOfCircle(Part.Circle(Vector(476.2, -236.4, 0), Vector(0, 0, 1), 12.7), math.radians(33), math.radians(61)), False)
sketch4.addGeometry(Part.ArcOfCircle(Part.Circle(Vector(480.57, -220.05, 0), Vector(0, 0, 1), 5.56), math.radians(-71), math.radians(0)), False)
sketch4.addGeometry(Part.ArcOfCircle(Part.Circle(Vector(480.57, -220.05, 0), Vector(0, 0, 1), 5.56), math.radians(0), math.radians(221)), False)
sketch4.addGeometry(Part.ArcOfCircle(Part.Circle(Vector(476.2, -236.4, 0), Vector(0, 0, 1), 12.7), math.radians(89.24), math.radians(90)), False)
sketch4.addGeometry(Part.LineSegment(Vector(476.2, -223.7, 0), Vector(428.29, -223.7, 0)), False)
sketch4.addGeometry(Part.ArcOfCircle(Part.Circle(Vector(428.29, -242.75, 0), Vector(0, 0, 1), 19.05), math.radians(0), math.radians(90)), False)
sketch4.addGeometry(Part.LineSegment(Vector(447.34, -242.75, 0), Vector(447.34, -256.56, 0)), False)
sketch4.addGeometry(Part.Circle(Vector(463.21, -256.56, 0), Vector(0, 0, 1), 3.35), False)
sketch4.addGeometry(Part.Circle(Vector(574.34, -256.56, 0), Vector(0, 0, 1), 3.35), False)
sketch4.addConstraint(Sketcher.Constraint("Tangent", 0, 2, 1, 1))
sketch4.addConstraint(Sketcher.Constraint("Tangent", 1, 2, 2, 1))
sketch4.addConstraint(Sketcher.Constraint("Tangent", 2, 2, 3, 1))
sketch4.addConstraint(Sketcher.Constraint("Tangent", 3, 2, 4, 2))
sketch4.addConstraint(Sketcher.Constraint("Tangent", 4, 1, 5, 1))
sketch4.addConstraint(Sketcher.Constraint("Tangent", 5, 2, 6, 1))
sketch4.addConstraint(Sketcher.Constraint("Coincident", 6, 2, 7, 1))
sketch4.addConstraint(Sketcher.Constraint("Tangent", 7, 2, 8, 1))
sketch4.addConstraint(Sketcher.Constraint("Coincident", 8, 2, 9, 1))
sketch4.addConstraint(Sketcher.Constraint("Tangent", 9, 2, 10, 2))
sketch4.addConstraint(Sketcher.Constraint("Tangent", 10, 1, 11, 1))
sketch4.addConstraint(Sketcher.Constraint("Coincident", 11, 2, 12, 1))
sketch4.addConstraint(Sketcher.Constraint("Tangent", 12, 2, 13, 1))
sketch4.addConstraint(Sketcher.Constraint("Coincident", 13, 2, 14, 1))
sketch4.addConstraint(Sketcher.Constraint("Tangent", 14, 2, 15, 1))
sketch4.addConstraint(Sketcher.Constraint("Tangent", 15, 2, 16, 2))
sketch4.addConstraint(Sketcher.Constraint("Tangent", 16, 1, 17, 1))
sketch4.addConstraint(Sketcher.Constraint("Tangent", 17, 2, 0, 1))
sketch4.addConstraint(Sketcher.Constraint("Horizontal", 1))
sketch4.addConstraint(Sketcher.Constraint("Vertical", 3))
sketch4.addConstraint(Sketcher.Constraint("Horizontal", 5))
sketch4.addConstraint(Sketcher.Constraint("Horizontal", 15))
sketch4.addConstraint(Sketcher.Constraint("Vertical", 17))
sketch4.addConstraint(Sketcher.Constraint("Coincident", 18, 3, 0, 3))
sketch4.addConstraint(Sketcher.Constraint("Coincident", 19, 3, 2, 3))
sketch4.addConstraint(Sketcher.Constraint("Equal", 0, 2))
sketch4.addConstraint(Sketcher.Constraint("Equal", 7, 8))
sketch4.addConstraint(Sketcher.Constraint("Equal", 9, 11))
sketch4.addConstraint(Sketcher.Constraint("Equal", 8, 12))
sketch4.addConstraint(Sketcher.Constraint("Equal", 12, 13))
sketch4.addConstraint(Sketcher.Constraint("Equal", 4, 16))
sketch4.addConstraint(Sketcher.Constraint("Equal", 18, 19))
sketch4.addConstraint(Sketcher.Constraint("Horizontal", 9, 3, 11, 3))
sketch4.addConstraint(Sketcher.Constraint("Horizontal", 8, 3, 12, 3))
sketch4.addConstraint(Sketcher.Constraint("Horizontal", 4, 3, 16, 3))
sketch4.addConstraint(Sketcher.Constraint("Horizontal", 13, 3, 7, 2))
sketch4.addConstraint(Sketcher.Constraint("Horizontal", 7, 2, 12, 2))
sketch4.addConstraint(Sketcher.Constraint("Vertical", 6, 3, 9, 3))
sketch4.addConstraint(Sketcher.Constraint("Vertical", 11, 3, 14, 3))
sketch4.addConstraint(Sketcher.Constraint("Radius", 9, Q("0.5 in")))
sketch4.addConstraint(Sketcher.Constraint("Radius", 10, Q("1.5 in")))
sketch4.addConstraint(Sketcher.Constraint("Radius", 4, Q("0.75 in")))
sketch4.addConstraint(Sketcher.Constraint("Diameter", 18, Q("0.264 in")))
sketch4.addConstraint(Sketcher.Constraint("Radius", 0, Q("0.625 in")))
sketch4.addConstraint(Sketcher.Constraint("Radius", 7, Q("0.219 in")))
sketch4.addConstraint(Sketcher.Constraint("DistanceY", 9, 3, 5, 2, Q("0.5 in")))
sketch4.addConstraint(Sketcher.Constraint("DistanceX", 1, 1, 1, 2, Q("4.375 in")))
sketch4.addConstraint(Sketcher.Constraint("Radius", 14, 12.699979))
sketch4.addConstraint(Sketcher.Constraint("DistanceY", 2, 3, 7, 3, Q("1.4375 in")))
sketch4.addConstraint(Sketcher.Constraint("DistanceY", 7, 3, 10, 3, Q("0.449 in")))
sketch4.addConstraint(Sketcher.Constraint("DistanceY", 3, 1, 3, 2, 13.8121))
sketch4.addConstraint(Sketcher.Constraint("Radius", 6, 12.700054))
sketch4.addConstraint(Sketcher.Constraint("DistanceX", 0, 3, 10, 3, Q("2.1865 in")))
sketch4.addConstraint(Sketcher.Constraint("DistanceX", -1, 1, 0, 3, 463.212201))
sketch4.addConstraint(Sketcher.Constraint("DistanceX", 11, 2, 10, 1, 4.454))
sketch4.addConstraint(Sketcher.Constraint("DistanceY", 14, 3, -1, 1, 236.399771))
sketch4.addConstraint(Sketcher.Constraint("DistanceX", -1, 1, 6, 2, 561.179749))
pad2 = body.newObject("PartDesign::Pad", "Pad001")
pad2.Profile = sketch4
pad2.Length = Q("0.19 in")

# Sketch on XY plane
sketch5 = body.newObject("Sketcher::SketchObject", "Sketch004")
sketch5.AttachmentSupport = (doc.getObject("XY_Plane"), [""])
sketch5.MapMode = "FlatFace"
sketch5.AttachmentOffset = App.Placement(Vector(0, 0, 0.19 * 25.4), App.Rotation())
sketch5.addGeometry(Part.Circle(Vector(463.2, -145.4, 0), Vector(0, 0, 1), 3.4), False)
sketch5.addGeometry(Part.Circle(Vector(574.3, -145.4, 0), Vector(0, 0, 1), 3.4), False)
sketch5.addConstraint(Sketcher.Constraint("Equal", 0, 1))
sketch5.addConstraint(Sketcher.Constraint("Horizontal", 0, 3, 1, 3))
sketch5.addConstraint(Sketcher.Constraint("Diameter", 0, Q("0.264 in")))
sketch5.addConstraint(Sketcher.Constraint("DistanceX", 0, 3, 1, 3, Q("4.375 in")))
sketch5.addConstraint(Sketcher.Constraint("DistanceX", -1, 1, 0, 3, 463.186801))
sketch5.addConstraint(Sketcher.Constraint("DistanceY", 0, 3, -1, 1, 145.436892))
pocket3 = body.newObject("PartDesign::Pocket", "Pocket002")
pocket3.Profile = sketch5
pocket3.Type = "ThroughAll"

# Sketch on XZ plane
sketch6 = body.newObject("Sketcher::SketchObject", "Sketch005")
sketch6.AttachmentSupport = (doc.getObject("XZ_Plane"), [""])
sketch6.MapMode = "FlatFace"
sketch6.AttachmentOffset = App.Placement(Vector(0, 0, 96.699792), App.Rotation())
add_polygon(sketch6, [(607.5, 0), (607.5, 4.8), (632.9, 4.8), (632.9, 0)])  # lines 0-3
sketch6.addConstraint(Sketcher.Constraint("Vertical", 0))
sketch6.addConstraint(Sketcher.Constraint("Horizontal", 1))
sketch6.addConstraint(Sketcher.Constraint("Vertical", 2))
sketch6.addConstraint(Sketcher.Constraint("Horizontal", 3))
sketch6.addConstraint(Sketcher.Constraint("PointOnObject", 2, 2, -1))
sketch6.addConstraint(Sketcher.Constraint("DistanceX", 1, 1, 1, 2, Q("1 in")))
sketch6.addConstraint(Sketcher.Constraint("DistanceY", 0, 1, 0, 2, Q("0.19 in")))
sketch6.addConstraint(Sketcher.Constraint("DistanceX", -1, 1, 0, 2, 607.498301))
pocket4 = body.newObject("PartDesign::Pocket", "Pocket003")
pocket4.Profile = sketch6
pocket4.Length = Q("0.19 in")
pocket4.Reversed = True

doc.recompute()
